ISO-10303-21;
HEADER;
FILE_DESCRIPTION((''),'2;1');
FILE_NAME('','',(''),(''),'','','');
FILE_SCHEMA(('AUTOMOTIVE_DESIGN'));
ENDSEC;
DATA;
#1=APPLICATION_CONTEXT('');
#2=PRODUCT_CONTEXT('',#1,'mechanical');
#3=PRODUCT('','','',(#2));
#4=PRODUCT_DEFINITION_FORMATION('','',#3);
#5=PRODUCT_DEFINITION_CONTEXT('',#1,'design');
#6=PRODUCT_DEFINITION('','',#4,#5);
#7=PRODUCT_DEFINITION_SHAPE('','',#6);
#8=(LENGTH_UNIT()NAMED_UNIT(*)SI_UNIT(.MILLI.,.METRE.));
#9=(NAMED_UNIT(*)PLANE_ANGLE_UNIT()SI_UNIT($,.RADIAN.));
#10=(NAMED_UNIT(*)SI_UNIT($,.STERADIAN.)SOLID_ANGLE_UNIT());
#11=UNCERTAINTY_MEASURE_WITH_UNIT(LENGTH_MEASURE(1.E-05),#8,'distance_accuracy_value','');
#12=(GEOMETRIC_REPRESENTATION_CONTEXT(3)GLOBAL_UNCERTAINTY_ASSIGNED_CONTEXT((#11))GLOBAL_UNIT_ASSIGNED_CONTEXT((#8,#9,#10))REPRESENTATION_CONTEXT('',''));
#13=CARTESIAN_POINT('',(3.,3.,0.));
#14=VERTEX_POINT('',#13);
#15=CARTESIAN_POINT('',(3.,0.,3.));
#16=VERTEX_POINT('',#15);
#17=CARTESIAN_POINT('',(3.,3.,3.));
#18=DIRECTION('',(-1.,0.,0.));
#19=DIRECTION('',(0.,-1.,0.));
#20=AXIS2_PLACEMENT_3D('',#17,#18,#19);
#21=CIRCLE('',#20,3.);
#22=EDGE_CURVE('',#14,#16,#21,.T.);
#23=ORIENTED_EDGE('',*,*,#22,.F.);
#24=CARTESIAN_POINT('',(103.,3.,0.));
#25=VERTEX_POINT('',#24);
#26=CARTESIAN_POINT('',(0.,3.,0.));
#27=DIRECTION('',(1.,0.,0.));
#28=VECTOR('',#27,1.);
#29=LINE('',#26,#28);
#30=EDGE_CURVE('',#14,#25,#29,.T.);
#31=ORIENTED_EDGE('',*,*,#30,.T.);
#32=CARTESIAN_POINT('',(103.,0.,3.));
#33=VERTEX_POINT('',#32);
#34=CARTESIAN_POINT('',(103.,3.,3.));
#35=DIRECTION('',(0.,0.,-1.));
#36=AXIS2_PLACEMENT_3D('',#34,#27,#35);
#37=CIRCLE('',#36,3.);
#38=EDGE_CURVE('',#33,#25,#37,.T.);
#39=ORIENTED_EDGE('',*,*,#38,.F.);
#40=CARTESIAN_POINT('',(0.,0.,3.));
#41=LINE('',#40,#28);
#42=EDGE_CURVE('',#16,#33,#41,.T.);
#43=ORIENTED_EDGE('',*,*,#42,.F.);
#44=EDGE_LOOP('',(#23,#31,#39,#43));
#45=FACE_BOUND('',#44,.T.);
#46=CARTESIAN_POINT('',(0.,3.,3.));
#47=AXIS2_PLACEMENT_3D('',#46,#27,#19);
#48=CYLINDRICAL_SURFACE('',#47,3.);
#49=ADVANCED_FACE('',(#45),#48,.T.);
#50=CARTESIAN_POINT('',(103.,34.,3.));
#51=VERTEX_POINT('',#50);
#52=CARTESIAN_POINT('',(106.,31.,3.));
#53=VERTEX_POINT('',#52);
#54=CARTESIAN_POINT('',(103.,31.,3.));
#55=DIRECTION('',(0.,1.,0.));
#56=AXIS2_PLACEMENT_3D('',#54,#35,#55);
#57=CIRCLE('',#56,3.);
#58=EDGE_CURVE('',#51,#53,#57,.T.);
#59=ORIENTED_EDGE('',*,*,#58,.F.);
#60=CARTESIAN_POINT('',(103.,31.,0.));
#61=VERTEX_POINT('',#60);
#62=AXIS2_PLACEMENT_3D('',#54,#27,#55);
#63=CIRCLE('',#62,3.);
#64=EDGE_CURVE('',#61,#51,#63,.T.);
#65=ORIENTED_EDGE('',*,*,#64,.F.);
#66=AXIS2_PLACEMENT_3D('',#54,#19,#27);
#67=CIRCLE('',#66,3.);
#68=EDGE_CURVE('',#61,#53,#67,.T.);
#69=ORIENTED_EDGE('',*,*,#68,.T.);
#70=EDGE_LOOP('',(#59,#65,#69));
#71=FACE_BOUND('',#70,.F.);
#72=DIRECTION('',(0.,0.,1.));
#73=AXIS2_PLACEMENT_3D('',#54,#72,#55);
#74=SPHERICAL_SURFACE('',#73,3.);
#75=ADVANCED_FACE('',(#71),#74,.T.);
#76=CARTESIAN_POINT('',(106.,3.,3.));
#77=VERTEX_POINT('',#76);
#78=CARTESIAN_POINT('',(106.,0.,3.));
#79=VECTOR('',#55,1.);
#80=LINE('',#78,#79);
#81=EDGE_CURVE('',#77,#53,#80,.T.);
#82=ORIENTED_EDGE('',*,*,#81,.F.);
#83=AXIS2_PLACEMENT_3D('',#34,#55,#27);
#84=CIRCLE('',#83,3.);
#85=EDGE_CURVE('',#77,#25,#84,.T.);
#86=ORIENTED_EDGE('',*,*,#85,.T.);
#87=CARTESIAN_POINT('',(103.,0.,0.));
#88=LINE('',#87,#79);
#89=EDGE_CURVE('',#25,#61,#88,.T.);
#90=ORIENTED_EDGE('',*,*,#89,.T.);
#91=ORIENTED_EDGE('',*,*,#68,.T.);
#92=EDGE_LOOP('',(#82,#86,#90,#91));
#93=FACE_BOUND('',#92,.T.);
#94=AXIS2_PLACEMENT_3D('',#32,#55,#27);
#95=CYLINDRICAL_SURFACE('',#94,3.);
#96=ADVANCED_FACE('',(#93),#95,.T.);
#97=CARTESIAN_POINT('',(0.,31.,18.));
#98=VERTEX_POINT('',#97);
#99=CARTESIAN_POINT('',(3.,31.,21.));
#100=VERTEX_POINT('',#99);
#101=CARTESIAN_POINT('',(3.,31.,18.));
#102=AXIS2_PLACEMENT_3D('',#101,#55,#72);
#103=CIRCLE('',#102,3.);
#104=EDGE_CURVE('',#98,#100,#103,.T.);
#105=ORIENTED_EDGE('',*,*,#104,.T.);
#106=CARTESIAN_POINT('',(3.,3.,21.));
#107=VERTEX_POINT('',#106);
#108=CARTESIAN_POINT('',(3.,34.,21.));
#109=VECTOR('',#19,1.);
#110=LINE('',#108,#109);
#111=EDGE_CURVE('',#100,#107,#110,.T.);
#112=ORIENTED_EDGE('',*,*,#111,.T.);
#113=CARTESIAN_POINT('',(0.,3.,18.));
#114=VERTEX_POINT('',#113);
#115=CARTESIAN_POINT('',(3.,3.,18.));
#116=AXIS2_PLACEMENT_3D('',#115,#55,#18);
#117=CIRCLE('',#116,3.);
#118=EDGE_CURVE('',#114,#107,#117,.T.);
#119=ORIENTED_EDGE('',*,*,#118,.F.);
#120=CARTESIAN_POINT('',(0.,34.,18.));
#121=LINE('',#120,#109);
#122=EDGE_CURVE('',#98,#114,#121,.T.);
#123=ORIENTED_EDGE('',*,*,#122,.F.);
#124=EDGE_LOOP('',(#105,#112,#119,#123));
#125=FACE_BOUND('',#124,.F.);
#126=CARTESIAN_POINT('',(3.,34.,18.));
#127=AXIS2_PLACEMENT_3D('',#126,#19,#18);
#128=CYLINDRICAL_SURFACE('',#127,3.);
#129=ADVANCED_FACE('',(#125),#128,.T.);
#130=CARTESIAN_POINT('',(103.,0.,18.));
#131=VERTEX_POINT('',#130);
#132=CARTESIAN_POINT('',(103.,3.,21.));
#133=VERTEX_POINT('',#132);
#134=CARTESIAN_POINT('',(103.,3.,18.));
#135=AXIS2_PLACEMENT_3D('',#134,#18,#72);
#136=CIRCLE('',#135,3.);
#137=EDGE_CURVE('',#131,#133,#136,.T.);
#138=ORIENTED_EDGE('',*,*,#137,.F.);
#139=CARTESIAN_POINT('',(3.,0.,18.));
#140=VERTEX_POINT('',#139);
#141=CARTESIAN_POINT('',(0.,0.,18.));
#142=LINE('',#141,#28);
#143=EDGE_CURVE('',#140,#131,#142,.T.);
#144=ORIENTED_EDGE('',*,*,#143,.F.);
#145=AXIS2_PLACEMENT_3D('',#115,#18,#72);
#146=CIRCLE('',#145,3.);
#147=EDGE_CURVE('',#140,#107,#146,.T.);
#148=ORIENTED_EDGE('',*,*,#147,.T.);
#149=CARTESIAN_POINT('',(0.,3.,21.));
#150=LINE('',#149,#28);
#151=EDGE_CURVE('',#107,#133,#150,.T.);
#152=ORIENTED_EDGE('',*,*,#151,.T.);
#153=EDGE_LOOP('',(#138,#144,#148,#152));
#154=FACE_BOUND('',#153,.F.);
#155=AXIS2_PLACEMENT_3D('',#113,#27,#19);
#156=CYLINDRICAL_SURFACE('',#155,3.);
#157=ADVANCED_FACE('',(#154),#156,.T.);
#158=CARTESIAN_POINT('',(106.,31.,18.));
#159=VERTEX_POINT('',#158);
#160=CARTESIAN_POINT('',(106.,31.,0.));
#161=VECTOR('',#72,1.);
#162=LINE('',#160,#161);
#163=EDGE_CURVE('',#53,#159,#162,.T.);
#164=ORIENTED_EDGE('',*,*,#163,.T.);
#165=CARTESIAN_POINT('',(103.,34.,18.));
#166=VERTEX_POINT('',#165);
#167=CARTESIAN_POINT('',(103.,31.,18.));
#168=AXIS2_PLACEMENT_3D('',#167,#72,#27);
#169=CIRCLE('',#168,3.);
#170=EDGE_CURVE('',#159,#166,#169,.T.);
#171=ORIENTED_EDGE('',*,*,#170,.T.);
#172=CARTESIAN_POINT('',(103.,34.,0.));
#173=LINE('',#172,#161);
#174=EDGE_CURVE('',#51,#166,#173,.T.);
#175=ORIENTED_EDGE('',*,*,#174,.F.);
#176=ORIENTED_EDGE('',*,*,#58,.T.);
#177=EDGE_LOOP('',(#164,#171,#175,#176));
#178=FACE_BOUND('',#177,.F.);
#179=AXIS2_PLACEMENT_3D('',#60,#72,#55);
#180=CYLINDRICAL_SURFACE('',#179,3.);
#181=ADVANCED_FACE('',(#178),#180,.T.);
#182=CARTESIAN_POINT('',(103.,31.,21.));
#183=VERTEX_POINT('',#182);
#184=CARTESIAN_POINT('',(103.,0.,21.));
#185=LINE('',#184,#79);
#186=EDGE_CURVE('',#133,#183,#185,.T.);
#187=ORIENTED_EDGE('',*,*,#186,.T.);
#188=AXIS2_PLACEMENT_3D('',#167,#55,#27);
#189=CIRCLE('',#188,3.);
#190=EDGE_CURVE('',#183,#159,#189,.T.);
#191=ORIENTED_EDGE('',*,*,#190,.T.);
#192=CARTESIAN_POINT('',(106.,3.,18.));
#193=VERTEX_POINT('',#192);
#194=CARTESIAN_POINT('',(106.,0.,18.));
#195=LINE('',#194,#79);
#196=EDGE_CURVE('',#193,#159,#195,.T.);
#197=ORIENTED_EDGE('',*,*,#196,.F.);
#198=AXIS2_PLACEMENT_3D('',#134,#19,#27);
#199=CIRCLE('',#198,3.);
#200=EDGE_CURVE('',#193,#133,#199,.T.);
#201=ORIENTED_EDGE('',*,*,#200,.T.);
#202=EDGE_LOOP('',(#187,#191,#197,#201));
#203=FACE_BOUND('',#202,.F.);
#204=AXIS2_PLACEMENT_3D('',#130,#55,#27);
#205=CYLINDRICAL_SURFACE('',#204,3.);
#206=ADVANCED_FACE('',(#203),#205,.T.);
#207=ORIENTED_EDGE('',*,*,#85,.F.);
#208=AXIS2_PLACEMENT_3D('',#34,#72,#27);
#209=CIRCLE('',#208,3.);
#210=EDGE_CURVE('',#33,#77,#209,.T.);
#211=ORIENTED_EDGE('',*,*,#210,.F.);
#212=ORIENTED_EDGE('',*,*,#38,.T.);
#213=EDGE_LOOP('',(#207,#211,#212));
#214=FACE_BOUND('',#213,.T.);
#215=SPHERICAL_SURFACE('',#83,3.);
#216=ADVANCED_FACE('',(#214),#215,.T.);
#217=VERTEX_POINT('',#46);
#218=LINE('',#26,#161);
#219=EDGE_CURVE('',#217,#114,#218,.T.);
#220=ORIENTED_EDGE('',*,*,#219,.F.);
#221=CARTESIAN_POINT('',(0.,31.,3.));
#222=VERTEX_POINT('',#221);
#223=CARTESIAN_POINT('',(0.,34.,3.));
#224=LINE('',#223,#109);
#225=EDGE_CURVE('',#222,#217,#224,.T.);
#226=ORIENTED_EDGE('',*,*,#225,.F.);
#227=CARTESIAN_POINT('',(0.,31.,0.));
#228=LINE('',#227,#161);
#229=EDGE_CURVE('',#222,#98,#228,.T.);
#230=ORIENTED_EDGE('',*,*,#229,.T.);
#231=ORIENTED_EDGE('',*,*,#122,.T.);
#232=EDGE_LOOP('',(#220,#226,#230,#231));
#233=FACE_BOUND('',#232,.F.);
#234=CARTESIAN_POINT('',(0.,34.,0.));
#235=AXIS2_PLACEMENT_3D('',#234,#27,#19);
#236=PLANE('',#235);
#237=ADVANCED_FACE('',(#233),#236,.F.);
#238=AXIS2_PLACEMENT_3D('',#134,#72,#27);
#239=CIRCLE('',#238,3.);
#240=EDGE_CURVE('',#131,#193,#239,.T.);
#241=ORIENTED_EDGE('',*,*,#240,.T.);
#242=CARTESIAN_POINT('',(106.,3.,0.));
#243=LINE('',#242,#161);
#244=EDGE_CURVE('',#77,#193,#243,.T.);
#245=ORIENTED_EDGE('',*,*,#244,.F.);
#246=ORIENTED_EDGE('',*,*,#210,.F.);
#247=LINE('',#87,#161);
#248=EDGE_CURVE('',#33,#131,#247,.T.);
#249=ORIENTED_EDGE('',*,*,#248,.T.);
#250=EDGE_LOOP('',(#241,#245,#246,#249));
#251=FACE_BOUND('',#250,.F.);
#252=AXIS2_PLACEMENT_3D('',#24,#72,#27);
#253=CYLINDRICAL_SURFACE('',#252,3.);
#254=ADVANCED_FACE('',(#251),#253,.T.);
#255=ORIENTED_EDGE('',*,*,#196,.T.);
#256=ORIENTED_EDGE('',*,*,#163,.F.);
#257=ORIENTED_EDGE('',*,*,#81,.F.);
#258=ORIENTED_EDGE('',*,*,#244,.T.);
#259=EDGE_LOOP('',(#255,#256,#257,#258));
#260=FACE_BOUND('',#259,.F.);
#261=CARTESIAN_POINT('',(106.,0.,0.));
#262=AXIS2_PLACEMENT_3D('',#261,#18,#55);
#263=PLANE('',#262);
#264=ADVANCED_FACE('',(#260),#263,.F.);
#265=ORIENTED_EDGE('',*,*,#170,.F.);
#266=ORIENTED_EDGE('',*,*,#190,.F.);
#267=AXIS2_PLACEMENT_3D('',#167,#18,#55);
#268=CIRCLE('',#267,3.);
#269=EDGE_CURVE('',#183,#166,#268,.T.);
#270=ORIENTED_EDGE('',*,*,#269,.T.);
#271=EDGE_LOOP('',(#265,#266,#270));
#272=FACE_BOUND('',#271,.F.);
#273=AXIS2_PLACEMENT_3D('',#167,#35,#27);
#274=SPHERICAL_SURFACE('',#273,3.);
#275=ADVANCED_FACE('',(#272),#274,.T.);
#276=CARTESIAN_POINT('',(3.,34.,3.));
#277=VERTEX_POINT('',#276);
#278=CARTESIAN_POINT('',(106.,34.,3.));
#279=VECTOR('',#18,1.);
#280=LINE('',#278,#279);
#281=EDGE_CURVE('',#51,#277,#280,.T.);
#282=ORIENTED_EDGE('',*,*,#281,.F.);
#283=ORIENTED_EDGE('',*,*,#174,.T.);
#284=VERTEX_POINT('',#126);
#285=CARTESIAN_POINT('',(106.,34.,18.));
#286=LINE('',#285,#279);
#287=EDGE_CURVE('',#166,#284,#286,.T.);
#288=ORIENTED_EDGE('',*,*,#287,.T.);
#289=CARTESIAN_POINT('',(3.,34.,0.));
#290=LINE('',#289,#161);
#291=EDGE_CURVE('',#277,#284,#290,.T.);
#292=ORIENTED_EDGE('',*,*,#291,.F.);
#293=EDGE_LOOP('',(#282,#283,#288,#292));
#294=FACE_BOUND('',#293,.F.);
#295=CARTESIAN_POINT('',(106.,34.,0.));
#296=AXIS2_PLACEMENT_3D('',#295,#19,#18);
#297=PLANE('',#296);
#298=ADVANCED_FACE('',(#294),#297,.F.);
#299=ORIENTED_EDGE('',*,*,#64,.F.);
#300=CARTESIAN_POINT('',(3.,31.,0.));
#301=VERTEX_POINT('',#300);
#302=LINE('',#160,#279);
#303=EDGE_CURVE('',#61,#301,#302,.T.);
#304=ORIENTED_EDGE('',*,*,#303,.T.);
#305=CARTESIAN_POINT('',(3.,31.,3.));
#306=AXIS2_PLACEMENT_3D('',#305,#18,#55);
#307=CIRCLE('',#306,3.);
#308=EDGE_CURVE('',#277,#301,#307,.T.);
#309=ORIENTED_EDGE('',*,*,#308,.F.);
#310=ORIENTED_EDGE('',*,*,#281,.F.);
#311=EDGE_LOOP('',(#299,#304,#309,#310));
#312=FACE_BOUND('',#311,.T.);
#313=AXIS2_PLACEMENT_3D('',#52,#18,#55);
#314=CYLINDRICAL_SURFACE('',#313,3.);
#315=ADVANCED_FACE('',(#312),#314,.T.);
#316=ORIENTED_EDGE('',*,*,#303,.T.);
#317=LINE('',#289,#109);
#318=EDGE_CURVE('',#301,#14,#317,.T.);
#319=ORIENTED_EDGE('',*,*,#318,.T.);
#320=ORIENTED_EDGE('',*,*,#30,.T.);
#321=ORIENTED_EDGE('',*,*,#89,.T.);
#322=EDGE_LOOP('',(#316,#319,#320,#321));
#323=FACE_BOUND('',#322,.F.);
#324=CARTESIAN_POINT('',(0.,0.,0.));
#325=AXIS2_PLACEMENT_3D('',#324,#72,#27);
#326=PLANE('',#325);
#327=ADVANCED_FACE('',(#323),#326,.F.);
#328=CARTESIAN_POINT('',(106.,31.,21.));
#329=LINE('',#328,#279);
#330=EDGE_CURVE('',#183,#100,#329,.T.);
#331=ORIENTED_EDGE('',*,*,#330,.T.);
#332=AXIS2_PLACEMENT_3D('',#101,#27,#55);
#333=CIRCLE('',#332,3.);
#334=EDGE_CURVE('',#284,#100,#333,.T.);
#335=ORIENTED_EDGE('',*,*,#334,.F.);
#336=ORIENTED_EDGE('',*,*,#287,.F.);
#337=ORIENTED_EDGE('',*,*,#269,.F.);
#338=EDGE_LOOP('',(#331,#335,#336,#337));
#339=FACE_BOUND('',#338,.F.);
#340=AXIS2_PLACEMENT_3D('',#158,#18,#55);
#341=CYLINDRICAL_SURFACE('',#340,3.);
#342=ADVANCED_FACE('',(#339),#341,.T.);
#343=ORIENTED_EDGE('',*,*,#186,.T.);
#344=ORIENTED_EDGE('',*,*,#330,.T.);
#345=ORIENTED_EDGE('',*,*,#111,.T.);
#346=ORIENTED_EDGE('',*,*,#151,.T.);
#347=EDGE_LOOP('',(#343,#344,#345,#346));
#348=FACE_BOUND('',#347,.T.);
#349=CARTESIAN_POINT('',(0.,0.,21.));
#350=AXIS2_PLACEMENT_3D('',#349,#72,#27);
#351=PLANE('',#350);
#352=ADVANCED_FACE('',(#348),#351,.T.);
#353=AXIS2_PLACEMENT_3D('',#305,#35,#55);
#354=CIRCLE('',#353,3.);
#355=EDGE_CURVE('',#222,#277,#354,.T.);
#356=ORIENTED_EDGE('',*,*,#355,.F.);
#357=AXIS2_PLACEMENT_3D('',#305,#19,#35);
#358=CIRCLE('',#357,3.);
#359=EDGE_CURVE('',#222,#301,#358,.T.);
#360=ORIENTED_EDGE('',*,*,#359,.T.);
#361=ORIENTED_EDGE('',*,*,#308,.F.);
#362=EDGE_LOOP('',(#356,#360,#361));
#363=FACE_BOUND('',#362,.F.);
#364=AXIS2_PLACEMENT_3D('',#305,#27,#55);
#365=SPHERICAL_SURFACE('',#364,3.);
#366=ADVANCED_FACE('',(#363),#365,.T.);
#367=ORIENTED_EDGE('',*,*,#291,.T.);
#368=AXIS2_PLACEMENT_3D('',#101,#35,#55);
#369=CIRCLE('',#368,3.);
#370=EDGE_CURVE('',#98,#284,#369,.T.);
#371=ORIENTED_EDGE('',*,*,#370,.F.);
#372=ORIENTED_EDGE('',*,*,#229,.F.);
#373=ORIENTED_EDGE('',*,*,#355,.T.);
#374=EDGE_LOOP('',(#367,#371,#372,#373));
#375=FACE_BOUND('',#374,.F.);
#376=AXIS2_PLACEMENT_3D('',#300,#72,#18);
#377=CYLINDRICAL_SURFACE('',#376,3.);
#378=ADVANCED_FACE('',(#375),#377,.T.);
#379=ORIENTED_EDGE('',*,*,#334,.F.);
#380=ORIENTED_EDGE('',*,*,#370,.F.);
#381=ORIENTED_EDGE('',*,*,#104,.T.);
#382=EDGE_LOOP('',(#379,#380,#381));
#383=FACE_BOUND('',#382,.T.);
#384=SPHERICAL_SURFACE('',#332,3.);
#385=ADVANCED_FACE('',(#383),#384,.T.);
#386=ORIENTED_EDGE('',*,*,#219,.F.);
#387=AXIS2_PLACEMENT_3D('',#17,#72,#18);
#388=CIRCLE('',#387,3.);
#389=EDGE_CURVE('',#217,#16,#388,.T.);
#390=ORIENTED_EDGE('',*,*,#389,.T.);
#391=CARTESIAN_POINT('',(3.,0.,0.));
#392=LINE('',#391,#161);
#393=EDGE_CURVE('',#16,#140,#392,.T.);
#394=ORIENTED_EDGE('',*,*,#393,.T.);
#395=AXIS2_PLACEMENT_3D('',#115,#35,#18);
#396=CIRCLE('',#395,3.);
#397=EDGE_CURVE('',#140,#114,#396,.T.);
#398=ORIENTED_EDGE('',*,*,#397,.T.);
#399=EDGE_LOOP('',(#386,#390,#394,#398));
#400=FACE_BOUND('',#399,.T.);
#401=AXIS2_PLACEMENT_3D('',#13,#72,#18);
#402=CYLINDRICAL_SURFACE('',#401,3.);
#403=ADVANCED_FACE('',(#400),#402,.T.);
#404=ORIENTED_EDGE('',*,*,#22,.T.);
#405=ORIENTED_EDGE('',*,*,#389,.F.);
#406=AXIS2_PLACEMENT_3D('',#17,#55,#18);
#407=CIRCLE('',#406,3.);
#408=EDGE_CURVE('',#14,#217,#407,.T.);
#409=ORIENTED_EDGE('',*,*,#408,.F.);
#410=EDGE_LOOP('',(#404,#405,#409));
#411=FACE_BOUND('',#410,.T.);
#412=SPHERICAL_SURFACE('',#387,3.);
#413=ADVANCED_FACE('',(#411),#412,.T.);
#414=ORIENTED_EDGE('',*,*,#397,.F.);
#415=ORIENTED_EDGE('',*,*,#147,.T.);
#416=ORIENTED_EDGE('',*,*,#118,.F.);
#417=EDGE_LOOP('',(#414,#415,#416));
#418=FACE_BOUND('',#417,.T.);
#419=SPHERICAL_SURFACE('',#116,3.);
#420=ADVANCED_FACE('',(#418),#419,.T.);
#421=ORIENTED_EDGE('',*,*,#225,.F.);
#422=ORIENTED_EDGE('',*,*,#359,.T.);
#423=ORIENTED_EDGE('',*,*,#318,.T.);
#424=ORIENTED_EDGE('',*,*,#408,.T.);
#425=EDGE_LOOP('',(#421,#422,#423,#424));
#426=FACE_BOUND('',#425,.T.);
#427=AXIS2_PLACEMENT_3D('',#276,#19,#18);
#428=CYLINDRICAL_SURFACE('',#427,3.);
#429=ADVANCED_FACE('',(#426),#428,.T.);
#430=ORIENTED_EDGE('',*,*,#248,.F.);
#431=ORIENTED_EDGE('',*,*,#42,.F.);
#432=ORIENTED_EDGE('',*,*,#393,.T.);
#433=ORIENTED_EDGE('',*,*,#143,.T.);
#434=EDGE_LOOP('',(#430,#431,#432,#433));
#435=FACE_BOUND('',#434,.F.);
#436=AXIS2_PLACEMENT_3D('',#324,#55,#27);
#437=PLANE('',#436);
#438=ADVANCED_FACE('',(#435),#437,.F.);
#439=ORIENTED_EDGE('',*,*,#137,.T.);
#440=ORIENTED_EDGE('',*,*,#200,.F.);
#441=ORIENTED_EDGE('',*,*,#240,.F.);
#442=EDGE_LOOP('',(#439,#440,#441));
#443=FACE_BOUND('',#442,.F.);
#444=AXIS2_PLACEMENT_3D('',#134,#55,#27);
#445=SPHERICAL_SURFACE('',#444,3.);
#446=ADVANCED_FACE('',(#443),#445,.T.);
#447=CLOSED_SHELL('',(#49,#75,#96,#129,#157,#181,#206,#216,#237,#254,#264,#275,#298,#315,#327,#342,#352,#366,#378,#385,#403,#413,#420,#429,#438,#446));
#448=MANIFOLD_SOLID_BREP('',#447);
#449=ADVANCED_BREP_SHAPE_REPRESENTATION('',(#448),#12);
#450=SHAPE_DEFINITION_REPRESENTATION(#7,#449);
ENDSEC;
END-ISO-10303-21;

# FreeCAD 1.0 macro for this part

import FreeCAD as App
import Part
import Sketcher
from FreeCAD import Vector

doc = App.newDocument("Part")
body = doc.addObject("PartDesign::Body", "Body")

# Sketch on XY plane
sketch1 = body.newObject("Sketcher::SketchObject", "Sketch")
sketch1.AttachmentSupport = (doc.getObject("XY_Plane"), [""])
sketch1.MapMode = "FlatFace"
sketch1.addGeometry(Part.LineSegment(Vector(0, 34, 0), Vector(0, 0, 0)), False)
sketch1.addGeometry(Part.LineSegment(Vector(0, 0, 0), Vector(106, 0, 0)), False)
sketch1.addGeometry(Part.LineSegment(Vector(106, 0, 0), Vector(106, 34, 0)), False)
sketch1.addGeometry(Part.LineSegment(Vector(106, 34, 0), Vector(0, 34, 0)), False)
sketch1.addConstraint(Sketcher.Constraint("Coincident", 0, 2, 1, 1))
sketch1.addConstraint(Sketcher.Constraint("Coincident", 1, 2, 2, 1))
sketch1.addConstraint(Sketcher.Constraint("Coincident", 2, 2, 3, 1))
sketch1.addConstraint(Sketcher.Constraint("Coincident", 3, 2, 0, 1))
sketch1.addConstraint(Sketcher.Constraint("Vertical", 0))
sketch1.addConstraint(Sketcher.Constraint("Horizontal", 1))
sketch1.addConstraint(Sketcher.Constraint("Vertical", 2))
sketch1.addConstraint(Sketcher.Constraint("Horizontal", 3))
sketch1.addConstraint(Sketcher.Constraint("Coincident", 0, 2, -1, 1))
sketch1.addConstraint(Sketcher.Constraint("DistanceX", 1, 1, 1, 2, 106.0))
sketch1.addConstraint(Sketcher.Constraint("DistanceY", 0, 2, 0, 1, 34.0))
pad1 = body.newObject("PartDesign::Pad", "Pad")
pad1.Profile = sketch1
pad1.Length = 21
doc.recompute()

fillet = body.newObject("PartDesign::Fillet", "Fillet")
fillet.Base = (pad1, ["Edge1"])
fillet.UseAllEdges = True
fillet.Radius = 3

doc.recompute()
